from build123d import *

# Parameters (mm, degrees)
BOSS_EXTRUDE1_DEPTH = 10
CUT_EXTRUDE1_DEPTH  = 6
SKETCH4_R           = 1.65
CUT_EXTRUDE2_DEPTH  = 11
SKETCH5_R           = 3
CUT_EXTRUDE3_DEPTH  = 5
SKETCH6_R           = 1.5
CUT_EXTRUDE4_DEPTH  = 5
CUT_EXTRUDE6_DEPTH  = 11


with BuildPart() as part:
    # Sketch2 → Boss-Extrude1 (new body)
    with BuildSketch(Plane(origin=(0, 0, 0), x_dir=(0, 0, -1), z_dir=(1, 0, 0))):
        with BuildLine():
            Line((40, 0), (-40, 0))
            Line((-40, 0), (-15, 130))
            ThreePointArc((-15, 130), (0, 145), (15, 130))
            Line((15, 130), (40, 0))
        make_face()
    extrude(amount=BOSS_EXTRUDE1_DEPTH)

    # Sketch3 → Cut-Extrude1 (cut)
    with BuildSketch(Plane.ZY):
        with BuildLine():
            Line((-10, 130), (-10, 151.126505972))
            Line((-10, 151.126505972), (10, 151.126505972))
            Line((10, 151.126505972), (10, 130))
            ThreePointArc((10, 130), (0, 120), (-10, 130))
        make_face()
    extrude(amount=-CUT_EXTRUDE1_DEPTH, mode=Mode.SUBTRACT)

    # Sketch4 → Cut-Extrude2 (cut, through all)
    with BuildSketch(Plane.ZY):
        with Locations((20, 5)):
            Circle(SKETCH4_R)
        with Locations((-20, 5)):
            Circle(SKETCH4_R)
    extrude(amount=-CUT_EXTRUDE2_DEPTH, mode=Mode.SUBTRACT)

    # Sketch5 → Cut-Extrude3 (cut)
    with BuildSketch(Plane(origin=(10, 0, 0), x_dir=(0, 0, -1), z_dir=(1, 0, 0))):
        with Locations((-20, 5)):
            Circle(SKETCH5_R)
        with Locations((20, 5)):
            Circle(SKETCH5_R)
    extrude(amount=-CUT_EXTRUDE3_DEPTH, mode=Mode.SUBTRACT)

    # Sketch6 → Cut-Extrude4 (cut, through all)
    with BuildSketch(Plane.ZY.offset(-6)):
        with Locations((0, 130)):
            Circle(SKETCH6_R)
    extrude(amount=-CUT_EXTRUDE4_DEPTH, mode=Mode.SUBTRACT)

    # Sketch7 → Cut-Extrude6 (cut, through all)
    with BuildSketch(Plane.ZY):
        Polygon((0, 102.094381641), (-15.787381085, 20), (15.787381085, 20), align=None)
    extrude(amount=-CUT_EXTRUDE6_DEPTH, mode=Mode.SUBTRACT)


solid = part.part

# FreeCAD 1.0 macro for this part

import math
import FreeCAD as App
import Part
import Sketcher
Q = App.Units.Quantity


def add_polygon(sketch, points):
    """Adds a closed chain of lines whose ends are joined by coincident constraints."""
    first, n = sketch.GeometryCount, len(points)
    for a, b in zip(points, points[1:] + points[:1]):
        sketch.addGeometry(Part.LineSegment(App.Vector(*a, 0), App.Vector(*b, 0)), False)
    for i in range(n):
        sketch.addConstraint(Sketcher.Constraint("Coincident", first + i, 2, first + (i + 1) % n, 1))

doc = App.newDocument("Part")
body = doc.addObject("PartDesign::Body", "Body")

# Sketch on YZ plane
sketch1 = body.newObject("Sketcher::SketchObject", "Sketch")
sketch1.AttachmentSupport = (doc.getObject("YZ_Plane"), [""])
sketch1.MapMode = "FlatFace"
sketch1.addGeometry([
    Part.LineSegment(App.Vector(0, 40, 0), App.Vector(0, -40, 0)),
    Part.LineSegment(App.Vector(0, -40, 0), App.Vector(130, -15, 0)),
    Part.ArcOfCircle(Part.Circle(App.Vector(130, 0, 0), App.Vector(0, 0, 1), 15), math.radians(-90), math.radians(90)),
    Part.LineSegment(App.Vector(130, 15, 0), App.Vector(0, 40, 0)),
], False)
sketch1.addConstraint([
    Sketcher.Constraint("Coincident", 0, 2, 1, 1),
    Sketcher.Constraint("Coincident", 1, 2, 2, 1),
    Sketcher.Constraint("Coincident", 2, 2, 3, 1),
    Sketcher.Constraint("Coincident", 3, 2, 0, 1),
    Sketcher.Constraint("Vertical", 0),
    Sketcher.Constraint("Symmetric", 0, 2, 3, 2, -1, 1),
    Sketcher.Constraint("Symmetric", 1, 2, 2, 2, -1),
    Sketcher.Constraint("Vertical", 2, 3, 1, 2),
    Sketcher.Constraint("Radius", 2, Q("15 mm")),
    Sketcher.Constraint("DistanceY", 0, 2, 0, 1, Q("80 mm")),
    Sketcher.Constraint("DistanceX", -1, 1, 2, 3, Q("130 mm")),
])
pad1 = body.newObject("PartDesign::Pad", "Pad")
pad1.Profile = sketch1
pad1.Length = 10

# Sketch on YZ plane
sketch2 = body.newObject("Sketcher::SketchObject", "Sketch001")
sketch2.AttachmentSupport = (doc.getObject("YZ_Plane"), [""])
sketch2.MapMode = "FlatFace"
sketch2.addGeometry([
    Part.LineSegment(App.Vector(151, -10, 0), App.Vector(130, -10, 0)),
    Part.ArcOfCircle(Part.Circle(App.Vector(130, 0, 0), App.Vector(0, 0, 1), 10), math.radians(90), math.radians(270)),
    Part.LineSegment(App.Vector(130, 10, 0), App.Vector(151, 10, 0)),
    Part.LineSegment(App.Vector(151, 10, 0), App.Vector(151, -10, 0)),
], False)
sketch2.addConstraint([
    Sketcher.Constraint("Tangent", 0, 2, 1, 2),
    Sketcher.Constraint("Tangent", 1, 1, 2, 1),
    Sketcher.Constraint("Coincident", 2, 2, 3, 1),
    Sketcher.Constraint("Coincident", 3, 2, 0, 1),
    Sketcher.Constraint("Horizontal", 0),
    Sketcher.Constraint("Horizontal", 2),
    Sketcher.Constraint("Vertical", 3),
    Sketcher.Constraint("PointOnObject", 1, 3, -1),
    Sketcher.Constraint("Radius", 1, Q("10 mm")),
    Sketcher.Constraint("DistanceX", -1, 1, 1, 3, Q("130 mm")),
    Sketcher.Constraint("DistanceX", 0, 2, 0, 1, Q("21.126506 mm")),
])
pocket1 = body.newObject("PartDesign::Pocket", "Pocket")
pocket1.Profile = sketch2
pocket1.Length = 6
pocket1.Reversed = True

# Sketch on YZ plane
sketch3 = body.newObject("Sketcher::SketchObject", "Sketch002")
sketch3.AttachmentSupport = (doc.getObject("YZ_Plane"), [""])
sketch3.MapMode = "FlatFace"
sketch3.addGeometry([
    Part.Circle(App.Vector(5, 20, 0), App.Vector(0, 0, 1), 1.6),
    Part.Circle(App.Vector(5, -20, 0), App.Vector(0, 0, 1), 1.6),
], False)
sketch3.addConstraint([
    Sketcher.Constraint("Equal", 0, 1),
    Sketcher.Constraint("Symmetric", 0, 3, 1, 3, -1),
    Sketcher.Constraint("Diameter", 0, Q("3.3 mm")),
    Sketcher.Constraint("DistanceX", -1, 1, 0, 3, Q("5 mm")),
    Sketcher.Constraint("DistanceY", -1, 1, 0, 3, Q("20 mm")),
])
pocket2 = body.newObject("PartDesign::Pocket", "Pocket001")
pocket2.Profile = sketch3
pocket2.Type = "ThroughAll"
pocket2.Reversed = True

# Sketch on YZ plane
sketch4 = body.newObject("Sketcher::SketchObject", "Sketch003")
sketch4.AttachmentSupport = (doc.getObject("YZ_Plane"), [""])
sketch4.MapMode = "FlatFace"
sketch4.AttachmentOffset = App.Placement(App.Vector(0, 0, 10), App.Rotation())
sketch4.addGeometry([
    Part.Circle(App.Vector(5, 20, 0), App.Vector(0, 0, 1), 3),
    Part.Circle(App.Vector(5, -20, 0), App.Vector(0, 0, 1), 3),
], False)
sketch4.addConstraint([
    Sketcher.Constraint("Equal", 0, 1),
    Sketcher.Constraint("Symmetric", 0, 3, 1, 3, -1),
    Sketcher.Constraint("Diameter", 0, Q("6 mm")),
    Sketcher.Constraint("DistanceX", -1, 1, 0, 3, Q("5 mm")),
    Sketcher.Constraint("DistanceY", -1, 1, 0, 3, Q("20 mm")),
])
pocket3 = body.newObject("PartDesign::Pocket", "Pocket002")
pocket3.Profile = sketch4
pocket3.Length = 5

# Sketch on YZ plane
sketch5 = body.newObject("Sketcher::SketchObject", "Sketch004")
sketch5.AttachmentSupport = (doc.getObject("YZ_Plane"), [""])
sketch5.MapMode = "FlatFace"
sketch5.AttachmentOffset = App.Placement(App.Vector(0, 0, 6), App.Rotation())
sketch5.addGeometry(Part.Circle(App.Vector(130, 0, 0), App.Vector(0, 0, 1), 1.5), False)
sketch5.addConstraint([
    Sketcher.Constraint("PointOnObject", 0, 3, -1),
    Sketcher.Constraint("Diameter", 0, Q("3 mm")),
    Sketcher.Constraint("DistanceX", -1, 1, 0, 3, Q("130 mm")),
])
pocket4 = body.newObject("PartDesign::Pocket", "Pocket003")
pocket4.Profile = sketch5
pocket4.Type = "ThroughAll"
pocket4.Reversed = True

# Sketch on YZ plane
sketch6 = body.newObject("Sketcher::SketchObject", "Sketch005")
sketch6.AttachmentSupport = (doc.getObject("YZ_Plane"), [""])
sketch6.MapMode = "FlatFace"
add_polygon(sketch6, [(102, 0), (20, -16), (20, 16)])  # lines 0-2
sketch6.addConstraint([
    Sketcher.Constraint("Vertical", 1),
    Sketcher.Constraint("PointOnObject", 2, 2, -1),
    Sketcher.Constraint("Equal", 0, 2),
    Sketcher.Constraint("DistanceX", -1, 1, 0, 2, Q("20 mm")),
    Sketcher.Constraint("DistanceY", 1, 1, 1, 2, Q("31.574762 mm")),
    Sketcher.Constraint("DistanceX", -1, 1, 2, 2, Q("102.094382 mm")),
])
pocket5 = body.newObject("PartDesign::Pocket", "Pocket004")
pocket5.Profile = sketch6
pocket5.Type = "ThroughAll"
pocket5.Reversed = True

doc.recompute()
